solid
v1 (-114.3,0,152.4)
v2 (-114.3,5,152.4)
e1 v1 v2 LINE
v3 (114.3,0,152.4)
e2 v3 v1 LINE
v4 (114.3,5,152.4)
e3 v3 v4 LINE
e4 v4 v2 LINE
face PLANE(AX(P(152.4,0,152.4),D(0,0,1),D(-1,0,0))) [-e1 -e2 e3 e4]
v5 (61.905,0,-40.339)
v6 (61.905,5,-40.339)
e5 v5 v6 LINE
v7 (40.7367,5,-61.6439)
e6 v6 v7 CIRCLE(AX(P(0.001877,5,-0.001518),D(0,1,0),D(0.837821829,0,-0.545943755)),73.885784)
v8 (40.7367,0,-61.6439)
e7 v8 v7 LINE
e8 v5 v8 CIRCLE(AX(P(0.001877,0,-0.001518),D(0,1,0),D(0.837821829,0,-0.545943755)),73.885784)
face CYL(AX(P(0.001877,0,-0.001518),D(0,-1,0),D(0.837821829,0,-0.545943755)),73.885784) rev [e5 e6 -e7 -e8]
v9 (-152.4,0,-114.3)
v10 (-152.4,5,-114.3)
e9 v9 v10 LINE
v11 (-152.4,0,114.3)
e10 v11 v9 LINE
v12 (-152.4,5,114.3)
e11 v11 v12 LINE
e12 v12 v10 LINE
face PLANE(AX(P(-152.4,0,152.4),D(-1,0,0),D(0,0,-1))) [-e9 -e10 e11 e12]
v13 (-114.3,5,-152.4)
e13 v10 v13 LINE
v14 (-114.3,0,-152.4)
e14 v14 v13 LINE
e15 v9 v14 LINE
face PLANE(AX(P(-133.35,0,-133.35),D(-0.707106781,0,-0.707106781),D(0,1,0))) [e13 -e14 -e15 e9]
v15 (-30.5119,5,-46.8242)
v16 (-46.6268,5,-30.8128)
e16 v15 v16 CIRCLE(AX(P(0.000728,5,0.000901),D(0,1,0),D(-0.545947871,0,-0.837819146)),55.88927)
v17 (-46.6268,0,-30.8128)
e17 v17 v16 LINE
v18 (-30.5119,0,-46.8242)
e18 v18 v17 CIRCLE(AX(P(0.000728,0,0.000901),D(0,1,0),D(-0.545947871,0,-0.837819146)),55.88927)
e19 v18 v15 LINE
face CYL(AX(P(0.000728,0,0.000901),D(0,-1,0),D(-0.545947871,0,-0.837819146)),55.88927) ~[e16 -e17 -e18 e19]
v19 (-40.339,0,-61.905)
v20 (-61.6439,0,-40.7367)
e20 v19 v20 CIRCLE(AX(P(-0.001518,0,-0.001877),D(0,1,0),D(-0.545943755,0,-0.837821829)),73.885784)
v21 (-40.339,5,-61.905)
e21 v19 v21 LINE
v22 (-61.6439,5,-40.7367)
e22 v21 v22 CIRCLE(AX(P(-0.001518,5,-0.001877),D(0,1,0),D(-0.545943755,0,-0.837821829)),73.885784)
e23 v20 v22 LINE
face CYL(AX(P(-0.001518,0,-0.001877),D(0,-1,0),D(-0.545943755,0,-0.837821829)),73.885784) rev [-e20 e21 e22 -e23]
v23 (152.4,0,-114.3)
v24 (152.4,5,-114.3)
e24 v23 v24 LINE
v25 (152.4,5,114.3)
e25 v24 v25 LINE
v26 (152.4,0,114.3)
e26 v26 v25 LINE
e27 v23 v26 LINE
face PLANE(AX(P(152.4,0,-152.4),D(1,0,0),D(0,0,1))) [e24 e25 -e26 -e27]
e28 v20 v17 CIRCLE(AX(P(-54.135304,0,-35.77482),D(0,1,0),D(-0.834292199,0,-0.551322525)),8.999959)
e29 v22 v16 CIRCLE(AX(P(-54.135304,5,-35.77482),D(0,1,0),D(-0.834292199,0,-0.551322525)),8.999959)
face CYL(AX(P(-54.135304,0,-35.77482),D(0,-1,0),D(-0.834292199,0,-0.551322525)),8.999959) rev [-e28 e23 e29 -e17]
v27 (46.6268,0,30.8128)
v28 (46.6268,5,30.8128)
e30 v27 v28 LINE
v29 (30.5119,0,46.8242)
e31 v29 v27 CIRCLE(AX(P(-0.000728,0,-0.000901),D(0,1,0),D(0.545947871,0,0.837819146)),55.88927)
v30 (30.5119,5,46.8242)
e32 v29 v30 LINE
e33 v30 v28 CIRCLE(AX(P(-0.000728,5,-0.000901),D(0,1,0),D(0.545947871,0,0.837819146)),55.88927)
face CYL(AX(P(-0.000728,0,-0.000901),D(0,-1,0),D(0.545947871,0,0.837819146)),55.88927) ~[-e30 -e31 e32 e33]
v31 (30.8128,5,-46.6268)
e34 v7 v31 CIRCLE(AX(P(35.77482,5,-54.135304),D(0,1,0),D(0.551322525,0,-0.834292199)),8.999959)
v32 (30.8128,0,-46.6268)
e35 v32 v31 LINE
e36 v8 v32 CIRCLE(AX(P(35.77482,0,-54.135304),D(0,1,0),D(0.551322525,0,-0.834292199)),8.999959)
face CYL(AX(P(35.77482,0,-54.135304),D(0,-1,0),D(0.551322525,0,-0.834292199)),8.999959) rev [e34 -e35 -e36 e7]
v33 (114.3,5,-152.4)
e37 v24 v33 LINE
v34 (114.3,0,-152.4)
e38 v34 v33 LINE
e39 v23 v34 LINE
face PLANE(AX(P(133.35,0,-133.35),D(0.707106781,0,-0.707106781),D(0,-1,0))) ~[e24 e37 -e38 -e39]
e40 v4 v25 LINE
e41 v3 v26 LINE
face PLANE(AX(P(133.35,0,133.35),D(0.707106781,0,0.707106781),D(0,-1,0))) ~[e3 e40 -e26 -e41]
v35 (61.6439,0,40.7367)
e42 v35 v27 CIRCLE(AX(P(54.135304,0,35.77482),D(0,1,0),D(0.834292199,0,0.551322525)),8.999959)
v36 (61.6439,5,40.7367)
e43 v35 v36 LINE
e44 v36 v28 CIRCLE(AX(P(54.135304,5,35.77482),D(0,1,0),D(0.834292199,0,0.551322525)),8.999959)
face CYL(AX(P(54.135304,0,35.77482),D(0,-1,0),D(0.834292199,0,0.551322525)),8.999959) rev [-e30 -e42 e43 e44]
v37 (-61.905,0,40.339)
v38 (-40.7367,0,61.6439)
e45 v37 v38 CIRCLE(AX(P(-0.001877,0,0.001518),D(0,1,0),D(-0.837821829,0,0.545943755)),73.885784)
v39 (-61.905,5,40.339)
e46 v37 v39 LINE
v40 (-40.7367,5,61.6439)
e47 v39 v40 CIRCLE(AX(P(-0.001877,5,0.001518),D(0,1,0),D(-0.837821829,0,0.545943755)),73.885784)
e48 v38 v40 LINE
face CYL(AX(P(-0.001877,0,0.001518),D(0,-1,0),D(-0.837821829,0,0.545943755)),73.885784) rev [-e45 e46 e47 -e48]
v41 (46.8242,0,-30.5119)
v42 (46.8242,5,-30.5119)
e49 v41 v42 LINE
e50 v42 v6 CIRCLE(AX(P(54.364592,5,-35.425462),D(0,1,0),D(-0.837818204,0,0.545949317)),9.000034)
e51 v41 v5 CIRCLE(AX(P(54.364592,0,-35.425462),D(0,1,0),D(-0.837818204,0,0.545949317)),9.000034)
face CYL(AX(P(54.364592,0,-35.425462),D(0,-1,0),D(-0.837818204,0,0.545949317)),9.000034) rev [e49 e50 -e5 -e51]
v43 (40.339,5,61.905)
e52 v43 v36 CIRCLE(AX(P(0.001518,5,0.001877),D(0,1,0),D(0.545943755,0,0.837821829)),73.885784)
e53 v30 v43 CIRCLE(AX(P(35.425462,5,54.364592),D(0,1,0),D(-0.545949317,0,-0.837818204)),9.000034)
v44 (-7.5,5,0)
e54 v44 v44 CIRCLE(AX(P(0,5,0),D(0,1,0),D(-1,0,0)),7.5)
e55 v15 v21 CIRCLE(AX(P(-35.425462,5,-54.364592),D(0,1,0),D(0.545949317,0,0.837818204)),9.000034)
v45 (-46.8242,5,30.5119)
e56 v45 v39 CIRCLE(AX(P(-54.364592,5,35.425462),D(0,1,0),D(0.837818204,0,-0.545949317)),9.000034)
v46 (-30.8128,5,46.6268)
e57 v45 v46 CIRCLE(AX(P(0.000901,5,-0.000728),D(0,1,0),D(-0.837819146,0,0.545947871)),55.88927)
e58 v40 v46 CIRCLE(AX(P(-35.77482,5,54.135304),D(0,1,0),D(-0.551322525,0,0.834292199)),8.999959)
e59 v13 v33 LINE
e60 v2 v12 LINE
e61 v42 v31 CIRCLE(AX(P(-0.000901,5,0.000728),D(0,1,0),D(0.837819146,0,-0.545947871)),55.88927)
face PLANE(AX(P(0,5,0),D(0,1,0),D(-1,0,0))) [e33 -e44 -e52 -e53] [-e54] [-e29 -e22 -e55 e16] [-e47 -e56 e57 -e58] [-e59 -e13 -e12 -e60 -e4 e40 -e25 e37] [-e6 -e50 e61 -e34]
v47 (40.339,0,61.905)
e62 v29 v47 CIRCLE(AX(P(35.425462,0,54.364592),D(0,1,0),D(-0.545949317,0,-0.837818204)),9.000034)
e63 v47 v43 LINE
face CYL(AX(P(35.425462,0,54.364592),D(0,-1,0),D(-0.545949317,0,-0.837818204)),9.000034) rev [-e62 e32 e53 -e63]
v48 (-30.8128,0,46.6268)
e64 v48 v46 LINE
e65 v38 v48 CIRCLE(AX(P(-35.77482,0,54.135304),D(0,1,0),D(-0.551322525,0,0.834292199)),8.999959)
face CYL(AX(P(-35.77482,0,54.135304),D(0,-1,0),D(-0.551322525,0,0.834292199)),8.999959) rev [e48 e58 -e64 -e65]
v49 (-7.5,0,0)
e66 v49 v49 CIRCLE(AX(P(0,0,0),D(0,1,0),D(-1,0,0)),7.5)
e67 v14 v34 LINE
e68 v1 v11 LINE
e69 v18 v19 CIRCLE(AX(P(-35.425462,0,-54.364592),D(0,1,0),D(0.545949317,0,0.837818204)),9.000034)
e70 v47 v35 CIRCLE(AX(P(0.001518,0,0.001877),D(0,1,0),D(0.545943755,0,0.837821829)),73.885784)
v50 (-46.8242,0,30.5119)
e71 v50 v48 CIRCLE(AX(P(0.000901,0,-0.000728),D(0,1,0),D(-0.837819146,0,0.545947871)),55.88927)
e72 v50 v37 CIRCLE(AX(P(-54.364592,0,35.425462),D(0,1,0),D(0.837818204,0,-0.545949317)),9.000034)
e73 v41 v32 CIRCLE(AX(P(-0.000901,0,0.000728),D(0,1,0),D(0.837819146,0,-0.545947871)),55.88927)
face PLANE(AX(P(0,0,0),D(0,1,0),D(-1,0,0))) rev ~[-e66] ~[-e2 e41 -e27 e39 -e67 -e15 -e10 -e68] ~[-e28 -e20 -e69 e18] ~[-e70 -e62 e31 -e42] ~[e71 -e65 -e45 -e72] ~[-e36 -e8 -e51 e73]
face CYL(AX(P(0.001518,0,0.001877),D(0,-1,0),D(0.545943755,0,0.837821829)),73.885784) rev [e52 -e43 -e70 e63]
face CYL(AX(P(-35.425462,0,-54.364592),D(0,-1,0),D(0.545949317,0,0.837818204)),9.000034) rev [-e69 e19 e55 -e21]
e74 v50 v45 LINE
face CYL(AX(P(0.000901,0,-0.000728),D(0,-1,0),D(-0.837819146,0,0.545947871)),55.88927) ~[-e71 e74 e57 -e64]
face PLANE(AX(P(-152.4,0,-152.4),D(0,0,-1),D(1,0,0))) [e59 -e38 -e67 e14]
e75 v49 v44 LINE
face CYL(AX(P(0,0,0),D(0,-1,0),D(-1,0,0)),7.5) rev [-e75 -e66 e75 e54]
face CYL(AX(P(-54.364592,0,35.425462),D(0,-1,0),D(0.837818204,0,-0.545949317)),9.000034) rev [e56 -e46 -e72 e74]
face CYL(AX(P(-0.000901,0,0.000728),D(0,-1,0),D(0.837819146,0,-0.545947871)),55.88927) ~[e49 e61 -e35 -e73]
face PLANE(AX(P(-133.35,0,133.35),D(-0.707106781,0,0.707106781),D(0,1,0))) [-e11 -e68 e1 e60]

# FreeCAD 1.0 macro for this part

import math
import FreeCAD as App
import Part
import Sketcher
Q = App.Units.Quantity


def edges_at(feature, points):
    """Names of the edges that pass closest to the given points."""
    edges = feature.Shape.Edges
    near = lambda p: min(range(len(edges)), key=lambda i: edges[i].distToShape(Part.Vertex(*p))[0])
    return sorted({f"Edge{near(p) + 1}" for p in points})


def add_polygon(sketch, points):
    """Adds a closed chain of lines whose ends are joined by coincident constraints."""
    first, n = sketch.GeometryCount, len(points)
    for a, b in zip(points, points[1:] + points[:1]):
        sketch.addGeometry(Part.LineSegment(App.Vector(*a, 0), App.Vector(*b, 0)), False)
    for i in range(n):
        sketch.addConstraint(Sketcher.Constraint("Coincident", first + i, 2, first + (i + 1) % n, 1))

doc = App.newDocument("Part")
body = doc.addObject("PartDesign::Body", "Body")

# Sketch on XZ plane
sketch1 = body.newObject("Sketcher::SketchObject", "Sketch")
sketch1.AttachmentSupport = (doc.getObject("XZ_Plane"), [""])
sketch1.MapMode = "FlatFace"
add_polygon(sketch1, [(-152.4, 152.4), (152.4, 152.4), (152.4, -152.4), (-152.4, -152.4)])  # lines 0-3
sketch1.addGeometry(Part.ArcOfCircle(Part.Circle(App.Vector(35.7748, -54.1354, 0), App.Vector(0, 0, 1), 8.99989), math.radians(123.458412), math.radians(303.458232)), False)  # 4
sketch1.addGeometry(Part.ArcOfCircle(Part.Circle(App.Vector(0.001877, -0.001518, 0), App.Vector(0, 0, 1), 73.885784), math.radians(-56.542278), math.radians(-33.08918)), False)  # 5
sketch1.addGeometry(Part.ArcOfCircle(Part.Circle(App.Vector(54.3646, -35.4255, 0), App.Vector(0, 0, 1), 9.000061), math.radians(-33.089201), math.radians(146.910266)), False)  # 6
sketch1.addGeometry(Part.ArcOfCircle(Part.Circle(App.Vector(-0.000901, 0.000728, 0), App.Vector(0, 0, 1), 55.88927), math.radians(-56.541365), math.radians(-33.089462)), False)  # 7
sketch1.addGeometry(Part.ArcOfCircle(Part.Circle(App.Vector(-54.1354, -35.7748, 0), App.Vector(0, 0, 1), 8.99989), math.radians(33.458412), math.radians(213.458232)), False)  # 8
sketch1.addGeometry(Part.ArcOfCircle(Part.Circle(App.Vector(-0.001518, -0.001877, 0), App.Vector(0, 0, 1), 73.885784), math.radians(-146.542278), math.radians(-123.08918)), False)  # 9
sketch1.addGeometry(Part.ArcOfCircle(Part.Circle(App.Vector(-35.4255, -54.3646, 0), App.Vector(0, 0, 1), 9.000061), math.radians(-123.089201), math.radians(56.910266)), False)  # 10
sketch1.addGeometry(Part.ArcOfCircle(Part.Circle(App.Vector(0.000728, 0.000901, 0), App.Vector(0, 0, 1), 55.88927), math.radians(-146.541365), math.radians(-123.089462)), False)  # 11
sketch1.addGeometry(Part.ArcOfCircle(Part.Circle(App.Vector(54.1354, 35.7748, 0), App.Vector(0, 0, 1), 8.99989), math.radians(-146.541588), math.radians(33.458232)), False)  # 12
sketch1.addGeometry(Part.ArcOfCircle(Part.Circle(App.Vector(0.001518, 0.001877, 0), App.Vector(0, 0, 1), 73.885784), math.radians(33.457722), math.radians(56.91082)), False)  # 13
sketch1.addGeometry(Part.ArcOfCircle(Part.Circle(App.Vector(35.4255, 54.3646, 0), App.Vector(0, 0, 1), 9.000061), math.radians(56.910799), math.radians(236.910266)), False)  # 14
sketch1.addGeometry(Part.ArcOfCircle(Part.Circle(App.Vector(-0.000728, -0.000901, 0), App.Vector(0, 0, 1), 55.88927), math.radians(33.458635), math.radians(56.910538)), False)  # 15
sketch1.addGeometry(Part.ArcOfCircle(Part.Circle(App.Vector(-0.001877, 0.001518, 0), App.Vector(0, 0, 1), 73.885784), math.radians(123.457722), math.radians(146.91082)), False)  # 16
sketch1.addGeometry(Part.ArcOfCircle(Part.Circle(App.Vector(-54.3646, 35.4255, 0), App.Vector(0, 0, 1), 9.000061), math.radians(146.910799), math.radians(326.910266)), False)  # 17
sketch1.addGeometry(Part.ArcOfCircle(Part.Circle(App.Vector(0.000901, -0.000728, 0), App.Vector(0, 0, 1), 55.88927), math.radians(123.458635), math.radians(146.910538)), False)  # 18
sketch1.addGeometry(Part.ArcOfCircle(Part.Circle(App.Vector(-35.7748, 54.1354, 0), App.Vector(0, 0, 1), 8.99989), math.radians(-56.541588), math.radians(123.458232)), False)  # 19
sketch1.addGeometry(Part.Circle(App.Vector(0, 0, 0), App.Vector(0, 0, 1), 7.5), False)  # 20
sketch1.addConstraint([
    Sketcher.Constraint("Tangent", 4, 2, 5, 1),
    Sketcher.Constraint("Tangent", 5, 2, 6, 1),
    Sketcher.Constraint("Tangent", 6, 2, 7, 2),
    Sketcher.Constraint("Tangent", 7, 1, 4, 1),
    Sketcher.Constraint("Tangent", 8, 2, 9, 1),
    Sketcher.Constraint("Tangent", 9, 2, 10, 1),
    Sketcher.Constraint("Tangent", 10, 2, 11, 2),
    Sketcher.Constraint("Tangent", 11, 1, 8, 1),
    Sketcher.Constraint("Tangent", 12, 2, 13, 1),
    Sketcher.Constraint("Tangent", 13, 2, 14, 1),
    Sketcher.Constraint("Tangent", 14, 2, 15, 2),
    Sketcher.Constraint("Tangent", 15, 1, 12, 1),
    Sketcher.Constraint("Tangent", 16, 2, 17, 1),
    Sketcher.Constraint("Tangent", 17, 2, 18, 2),
    Sketcher.Constraint("Tangent", 18, 1, 19, 1),
    Sketcher.Constraint("Tangent", 19, 2, 16, 1),
    Sketcher.Constraint("Horizontal", 0),
    Sketcher.Constraint("Vertical", 1),
    Sketcher.Constraint("Horizontal", 2),
    Sketcher.Constraint("Vertical", 3),
    Sketcher.Constraint("Coincident", 20, 3, -1, 1),
    Sketcher.Constraint("Equal", 4, 6),
    Sketcher.Constraint("Equal", 6, 8),
    Sketcher.Constraint("Equal", 5, 9),
    Sketcher.Constraint("Equal", 8, 10),
    Sketcher.Constraint("Equal", 7, 11),
    Sketcher.Constraint("Equal", 10, 12),
    Sketcher.Constraint("Equal", 9, 13),
    Sketcher.Constraint("Equal", 12, 14),
    Sketcher.Constraint("Equal", 11, 15),
    Sketcher.Constraint("Equal", 13, 16),
    Sketcher.Constraint("Equal", 14, 17),
    Sketcher.Constraint("Equal", 15, 18),
    Sketcher.Constraint("Equal", 17, 19),
    Sketcher.Constraint("Symmetric", 8, 3, 12, 3, -1, 1),
    Sketcher.Constraint("Symmetric", 10, 3, 14, 3, -1, 1),
    Sketcher.Constraint("Symmetric", 5, 3, 16, 3, -1, 1),
    Sketcher.Constraint("Symmetric", 0, 2, 2, 2, -1, 1),
    Sketcher.Constraint("Symmetric", 7, 3, 11, 3, -2),
    Sketcher.Constraint("Equal", 2, 1),
    Sketcher.Constraint("Diameter", 20, Q("15 mm")),
    Sketcher.Constraint("Radius", 4, Q("9 mm")),
    Sketcher.Constraint("DistanceX", 0, 1, 0, 2, Q("304.8 mm")),
    Sketcher.Constraint("Radius", 5, Q("73.8858 mm")),
    Sketcher.Constraint("Radius", 7, Q("55.8893 mm")),
    Sketcher.Constraint("DistanceX", 8, 3, 6, 3, Q("108.5 mm")),
    Sketcher.Constraint("DistanceY", 4, 3, 6, 3, Q("18.71 mm")),
    Sketcher.Constraint("DistanceX", 8, 3, 10, 3, Q("18.71 mm")),
    Sketcher.Constraint("DistanceY", 17, 3, 19, 3, Q("18.71 mm")),
    Sketcher.Constraint("DistanceX", 7, 3, -1, 1, Q("0.001 mm")),
    Sketcher.Constraint("DistanceY", -1, 1, 11, 3, Q("0.001 mm")),
    Sketcher.Constraint("DistanceY", 4, 2, -1, 1, Q("61.644 mm")),
    Sketcher.Constraint("DistanceX", 16, 2, -1, 1, Q("61.905 mm")),
])
pad1 = body.newObject("PartDesign::Pad", "Pad")
pad1.Profile = sketch1
pad1.Length = 5
pad1.Reversed = True
doc.recompute()

chamfer = body.newObject("PartDesign::Chamfer", "Chamfer")
chamfer.Base = (pad1, edges_at(pad1, [
    (152.4, 2.5, -152.4),
    (-152.4, 2.5, -152.4),
    (-152.4, 2.5, 152.4),
    (152.4, 2.5, 152.4),
]))
chamfer.Size = 38.1

doc.recompute()
